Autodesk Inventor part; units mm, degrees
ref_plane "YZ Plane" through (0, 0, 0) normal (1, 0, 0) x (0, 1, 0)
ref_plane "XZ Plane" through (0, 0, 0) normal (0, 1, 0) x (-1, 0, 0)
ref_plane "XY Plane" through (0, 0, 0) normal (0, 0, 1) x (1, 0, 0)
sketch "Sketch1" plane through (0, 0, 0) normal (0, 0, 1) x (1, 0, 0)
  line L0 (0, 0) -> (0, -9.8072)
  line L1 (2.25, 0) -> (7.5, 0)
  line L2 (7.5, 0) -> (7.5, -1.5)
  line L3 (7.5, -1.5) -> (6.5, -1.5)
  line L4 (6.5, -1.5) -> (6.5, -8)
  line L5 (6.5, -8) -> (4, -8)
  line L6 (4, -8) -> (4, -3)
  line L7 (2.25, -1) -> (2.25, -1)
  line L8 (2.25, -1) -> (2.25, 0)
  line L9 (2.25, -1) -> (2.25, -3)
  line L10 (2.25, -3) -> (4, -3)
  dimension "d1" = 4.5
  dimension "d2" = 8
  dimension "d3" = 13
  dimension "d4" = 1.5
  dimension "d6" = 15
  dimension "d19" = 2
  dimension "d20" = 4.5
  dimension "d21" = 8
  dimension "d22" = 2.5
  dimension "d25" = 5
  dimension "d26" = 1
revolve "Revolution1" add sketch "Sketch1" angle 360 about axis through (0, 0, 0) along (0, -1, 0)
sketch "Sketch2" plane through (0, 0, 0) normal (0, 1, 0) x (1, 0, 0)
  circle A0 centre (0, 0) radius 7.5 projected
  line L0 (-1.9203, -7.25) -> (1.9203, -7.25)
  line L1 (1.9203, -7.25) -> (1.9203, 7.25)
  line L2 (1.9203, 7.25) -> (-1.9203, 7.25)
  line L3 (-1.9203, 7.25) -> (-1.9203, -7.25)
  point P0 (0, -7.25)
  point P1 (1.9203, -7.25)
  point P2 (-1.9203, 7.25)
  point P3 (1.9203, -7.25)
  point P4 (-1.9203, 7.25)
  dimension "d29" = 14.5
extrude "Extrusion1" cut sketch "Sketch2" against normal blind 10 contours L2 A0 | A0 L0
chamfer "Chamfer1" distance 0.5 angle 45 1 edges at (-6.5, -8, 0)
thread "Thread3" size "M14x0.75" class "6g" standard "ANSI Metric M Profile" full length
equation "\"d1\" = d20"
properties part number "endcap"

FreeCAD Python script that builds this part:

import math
import FreeCAD as App
import Part
import Sketcher

V = App.Vector
Q = App.Units.Quantity


def edges_at(feature, points):
    """Names of the edges that pass closest to the given points."""
    edges = feature.Shape.Edges
    near = lambda p: min(range(len(edges)), key=lambda i: edges[i].distToShape(Part.Vertex(*p))[0])
    return sorted({f"Edge{near(p) + 1}" for p in points})

doc = App.newDocument("Part")
body = doc.addObject("PartDesign::Body", "Body")

# Sketch on XY plane
sketch1 = doc.addObject("Sketcher::SketchObject", "Sketch")
body.addObject(sketch1)
sketch1.AttachmentSupport = (doc.XY_Plane, [""])
sketch1.MapMode = "FlatFace"
sketch1.addGeometry(Part.LineSegment(V(7.5, 0, 0), V(2.2, 0, 0)), False)
sketch1.addGeometry(Part.LineSegment(V(2.2, 0, 0), V(2.2, -3, 0)), False)
sketch1.addGeometry(Part.LineSegment(V(2.2, -3, 0), V(4, -3, 0)), False)
sketch1.addGeometry(Part.LineSegment(V(4, -3, 0), V(4, -8, 0)), False)
sketch1.addGeometry(Part.LineSegment(V(4, -8, 0), V(6.5, -8, 0)), False)
sketch1.addGeometry(Part.LineSegment(V(6.5, -8, 0), V(6.5, -1.5, 0)), False)
sketch1.addGeometry(Part.LineSegment(V(6.5, -1.5, 0), V(7.5, -1.5, 0)), False)
sketch1.addGeometry(Part.LineSegment(V(7.5, -1.5, 0), V(7.5, 0, 0)), False)
sketch1.addConstraint(Sketcher.Constraint("Coincident", 0, 2, 1, 1))
sketch1.addConstraint(Sketcher.Constraint("Coincident", 1, 2, 2, 1))
sketch1.addConstraint(Sketcher.Constraint("Coincident", 2, 2, 3, 1))
sketch1.addConstraint(Sketcher.Constraint("Coincident", 3, 2, 4, 1))
sketch1.addConstraint(Sketcher.Constraint("Coincident", 4, 2, 5, 1))
sketch1.addConstraint(Sketcher.Constraint("Coincident", 5, 2, 6, 1))
sketch1.addConstraint(Sketcher.Constraint("Coincident", 6, 2, 7, 1))
sketch1.addConstraint(Sketcher.Constraint("Coincident", 7, 2, 0, 1))
sketch1.addConstraint(Sketcher.Constraint("Horizontal", 0))
sketch1.addConstraint(Sketcher.Constraint("Vertical", 1))
sketch1.addConstraint(Sketcher.Constraint("Horizontal", 2))
sketch1.addConstraint(Sketcher.Constraint("Vertical", 3))
sketch1.addConstraint(Sketcher.Constraint("Horizontal", 4))
sketch1.addConstraint(Sketcher.Constraint("Vertical", 5))
sketch1.addConstraint(Sketcher.Constraint("Horizontal", 6))
sketch1.addConstraint(Sketcher.Constraint("Vertical", 7))
sketch1.addConstraint(Sketcher.Constraint("PointOnObject", 0, 2, -1))
sketch1.addConstraint(Sketcher.Constraint("DistanceX", 6, 1, 6, 2, Q("1 mm")))
sketch1.addConstraint(Sketcher.Constraint("DistanceY", 3, 2, 3, 1, Q("5 mm")))
sketch1.addConstraint(Sketcher.Constraint("DistanceX", 4, 1, 4, 2, Q("2.5 mm")))
sketch1.addConstraint(Sketcher.Constraint("DistanceY", 7, 1, 7, 2, Q("1.5 mm")))
sketch1.addConstraint(Sketcher.Constraint("DistanceY", 3, 2, -1, 1, Q("8 mm")))
sketch1.addConstraint(Sketcher.Constraint("DistanceX", -1, 1, 2, 2, Q("4 mm")))
sketch1.addConstraint(Sketcher.Constraint("DistanceX", 0, 2, 0, 1, Q("5.25 mm")))
revolution = doc.addObject("PartDesign::Revolution", "Revolution")
body.addObject(revolution)
revolution.Profile = sketch1
revolution.ReferenceAxis = (sketch1, ["V_Axis"])
revolution.Angle = 360

# Sketch on XZ plane
sketch2 = doc.addObject("Sketcher::SketchObject", "Sketch001")
body.addObject(sketch2)
sketch2.AttachmentSupport = (doc.XZ_Plane, [""])
sketch2.MapMode = "FlatFace"
sketch2.addGeometry(Part.LineSegment(V(-1.9, -7.2, 0), V(1.9, -7.2, 0)), False)
sketch2.addGeometry(Part.ArcOfCircle(Part.Circle(V(0, 0, 0), V(0, 0, 1), 7.5), math.radians(-105), math.radians(-75)), False)
sketch2.addGeometry(Part.ArcOfCircle(Part.Circle(V(0, 0, 0), V(0, 0, 1), 7.5), math.radians(75), math.radians(105)), False)
sketch2.addGeometry(Part.LineSegment(V(-1.9, 7.2, 0), V(1.9, 7.2, 0)), False)
sketch2.addConstraint(Sketcher.Constraint("Coincident", 0, 1, 1, 1))
sketch2.addConstraint(Sketcher.Constraint("Coincident", 1, 2, 0, 2))
sketch2.addConstraint(Sketcher.Constraint("Coincident", 2, 1, 3, 2))
sketch2.addConstraint(Sketcher.Constraint("Coincident", 3, 1, 2, 2))
sketch2.addConstraint(Sketcher.Constraint("Horizontal", 0))
sketch2.addConstraint(Sketcher.Constraint("Horizontal", 3))
sketch2.addConstraint(Sketcher.Constraint("Coincident", 1, 3, -1, 1))
sketch2.addConstraint(Sketcher.Constraint("Coincident", 2, 3, -1, 1))
sketch2.addConstraint(Sketcher.Constraint("Equal", 1, 2))
sketch2.addConstraint(Sketcher.Constraint("Vertical", 1, 2, 2, 1))
sketch2.addConstraint(Sketcher.Constraint("Radius", 1, Q("7.5 mm")))
sketch2.addConstraint(Sketcher.Constraint("DistanceY", 1, 2, 2, 1, Q("14.5 mm")))
pocket1 = doc.addObject("PartDesign::Pocket", "Pocket")
body.addObject(pocket1)
pocket1.Profile = sketch2
pocket1.Length = 10
pocket1.Reversed = True
doc.recompute()

chamfer = doc.addObject("PartDesign::Chamfer", "Chamfer")
body.addObject(chamfer)
chamfer.Base = (pocket1, edges_at(pocket1, [(-6.5, -8, 0)]))
chamfer.Size = 0.5

doc.recompute()
